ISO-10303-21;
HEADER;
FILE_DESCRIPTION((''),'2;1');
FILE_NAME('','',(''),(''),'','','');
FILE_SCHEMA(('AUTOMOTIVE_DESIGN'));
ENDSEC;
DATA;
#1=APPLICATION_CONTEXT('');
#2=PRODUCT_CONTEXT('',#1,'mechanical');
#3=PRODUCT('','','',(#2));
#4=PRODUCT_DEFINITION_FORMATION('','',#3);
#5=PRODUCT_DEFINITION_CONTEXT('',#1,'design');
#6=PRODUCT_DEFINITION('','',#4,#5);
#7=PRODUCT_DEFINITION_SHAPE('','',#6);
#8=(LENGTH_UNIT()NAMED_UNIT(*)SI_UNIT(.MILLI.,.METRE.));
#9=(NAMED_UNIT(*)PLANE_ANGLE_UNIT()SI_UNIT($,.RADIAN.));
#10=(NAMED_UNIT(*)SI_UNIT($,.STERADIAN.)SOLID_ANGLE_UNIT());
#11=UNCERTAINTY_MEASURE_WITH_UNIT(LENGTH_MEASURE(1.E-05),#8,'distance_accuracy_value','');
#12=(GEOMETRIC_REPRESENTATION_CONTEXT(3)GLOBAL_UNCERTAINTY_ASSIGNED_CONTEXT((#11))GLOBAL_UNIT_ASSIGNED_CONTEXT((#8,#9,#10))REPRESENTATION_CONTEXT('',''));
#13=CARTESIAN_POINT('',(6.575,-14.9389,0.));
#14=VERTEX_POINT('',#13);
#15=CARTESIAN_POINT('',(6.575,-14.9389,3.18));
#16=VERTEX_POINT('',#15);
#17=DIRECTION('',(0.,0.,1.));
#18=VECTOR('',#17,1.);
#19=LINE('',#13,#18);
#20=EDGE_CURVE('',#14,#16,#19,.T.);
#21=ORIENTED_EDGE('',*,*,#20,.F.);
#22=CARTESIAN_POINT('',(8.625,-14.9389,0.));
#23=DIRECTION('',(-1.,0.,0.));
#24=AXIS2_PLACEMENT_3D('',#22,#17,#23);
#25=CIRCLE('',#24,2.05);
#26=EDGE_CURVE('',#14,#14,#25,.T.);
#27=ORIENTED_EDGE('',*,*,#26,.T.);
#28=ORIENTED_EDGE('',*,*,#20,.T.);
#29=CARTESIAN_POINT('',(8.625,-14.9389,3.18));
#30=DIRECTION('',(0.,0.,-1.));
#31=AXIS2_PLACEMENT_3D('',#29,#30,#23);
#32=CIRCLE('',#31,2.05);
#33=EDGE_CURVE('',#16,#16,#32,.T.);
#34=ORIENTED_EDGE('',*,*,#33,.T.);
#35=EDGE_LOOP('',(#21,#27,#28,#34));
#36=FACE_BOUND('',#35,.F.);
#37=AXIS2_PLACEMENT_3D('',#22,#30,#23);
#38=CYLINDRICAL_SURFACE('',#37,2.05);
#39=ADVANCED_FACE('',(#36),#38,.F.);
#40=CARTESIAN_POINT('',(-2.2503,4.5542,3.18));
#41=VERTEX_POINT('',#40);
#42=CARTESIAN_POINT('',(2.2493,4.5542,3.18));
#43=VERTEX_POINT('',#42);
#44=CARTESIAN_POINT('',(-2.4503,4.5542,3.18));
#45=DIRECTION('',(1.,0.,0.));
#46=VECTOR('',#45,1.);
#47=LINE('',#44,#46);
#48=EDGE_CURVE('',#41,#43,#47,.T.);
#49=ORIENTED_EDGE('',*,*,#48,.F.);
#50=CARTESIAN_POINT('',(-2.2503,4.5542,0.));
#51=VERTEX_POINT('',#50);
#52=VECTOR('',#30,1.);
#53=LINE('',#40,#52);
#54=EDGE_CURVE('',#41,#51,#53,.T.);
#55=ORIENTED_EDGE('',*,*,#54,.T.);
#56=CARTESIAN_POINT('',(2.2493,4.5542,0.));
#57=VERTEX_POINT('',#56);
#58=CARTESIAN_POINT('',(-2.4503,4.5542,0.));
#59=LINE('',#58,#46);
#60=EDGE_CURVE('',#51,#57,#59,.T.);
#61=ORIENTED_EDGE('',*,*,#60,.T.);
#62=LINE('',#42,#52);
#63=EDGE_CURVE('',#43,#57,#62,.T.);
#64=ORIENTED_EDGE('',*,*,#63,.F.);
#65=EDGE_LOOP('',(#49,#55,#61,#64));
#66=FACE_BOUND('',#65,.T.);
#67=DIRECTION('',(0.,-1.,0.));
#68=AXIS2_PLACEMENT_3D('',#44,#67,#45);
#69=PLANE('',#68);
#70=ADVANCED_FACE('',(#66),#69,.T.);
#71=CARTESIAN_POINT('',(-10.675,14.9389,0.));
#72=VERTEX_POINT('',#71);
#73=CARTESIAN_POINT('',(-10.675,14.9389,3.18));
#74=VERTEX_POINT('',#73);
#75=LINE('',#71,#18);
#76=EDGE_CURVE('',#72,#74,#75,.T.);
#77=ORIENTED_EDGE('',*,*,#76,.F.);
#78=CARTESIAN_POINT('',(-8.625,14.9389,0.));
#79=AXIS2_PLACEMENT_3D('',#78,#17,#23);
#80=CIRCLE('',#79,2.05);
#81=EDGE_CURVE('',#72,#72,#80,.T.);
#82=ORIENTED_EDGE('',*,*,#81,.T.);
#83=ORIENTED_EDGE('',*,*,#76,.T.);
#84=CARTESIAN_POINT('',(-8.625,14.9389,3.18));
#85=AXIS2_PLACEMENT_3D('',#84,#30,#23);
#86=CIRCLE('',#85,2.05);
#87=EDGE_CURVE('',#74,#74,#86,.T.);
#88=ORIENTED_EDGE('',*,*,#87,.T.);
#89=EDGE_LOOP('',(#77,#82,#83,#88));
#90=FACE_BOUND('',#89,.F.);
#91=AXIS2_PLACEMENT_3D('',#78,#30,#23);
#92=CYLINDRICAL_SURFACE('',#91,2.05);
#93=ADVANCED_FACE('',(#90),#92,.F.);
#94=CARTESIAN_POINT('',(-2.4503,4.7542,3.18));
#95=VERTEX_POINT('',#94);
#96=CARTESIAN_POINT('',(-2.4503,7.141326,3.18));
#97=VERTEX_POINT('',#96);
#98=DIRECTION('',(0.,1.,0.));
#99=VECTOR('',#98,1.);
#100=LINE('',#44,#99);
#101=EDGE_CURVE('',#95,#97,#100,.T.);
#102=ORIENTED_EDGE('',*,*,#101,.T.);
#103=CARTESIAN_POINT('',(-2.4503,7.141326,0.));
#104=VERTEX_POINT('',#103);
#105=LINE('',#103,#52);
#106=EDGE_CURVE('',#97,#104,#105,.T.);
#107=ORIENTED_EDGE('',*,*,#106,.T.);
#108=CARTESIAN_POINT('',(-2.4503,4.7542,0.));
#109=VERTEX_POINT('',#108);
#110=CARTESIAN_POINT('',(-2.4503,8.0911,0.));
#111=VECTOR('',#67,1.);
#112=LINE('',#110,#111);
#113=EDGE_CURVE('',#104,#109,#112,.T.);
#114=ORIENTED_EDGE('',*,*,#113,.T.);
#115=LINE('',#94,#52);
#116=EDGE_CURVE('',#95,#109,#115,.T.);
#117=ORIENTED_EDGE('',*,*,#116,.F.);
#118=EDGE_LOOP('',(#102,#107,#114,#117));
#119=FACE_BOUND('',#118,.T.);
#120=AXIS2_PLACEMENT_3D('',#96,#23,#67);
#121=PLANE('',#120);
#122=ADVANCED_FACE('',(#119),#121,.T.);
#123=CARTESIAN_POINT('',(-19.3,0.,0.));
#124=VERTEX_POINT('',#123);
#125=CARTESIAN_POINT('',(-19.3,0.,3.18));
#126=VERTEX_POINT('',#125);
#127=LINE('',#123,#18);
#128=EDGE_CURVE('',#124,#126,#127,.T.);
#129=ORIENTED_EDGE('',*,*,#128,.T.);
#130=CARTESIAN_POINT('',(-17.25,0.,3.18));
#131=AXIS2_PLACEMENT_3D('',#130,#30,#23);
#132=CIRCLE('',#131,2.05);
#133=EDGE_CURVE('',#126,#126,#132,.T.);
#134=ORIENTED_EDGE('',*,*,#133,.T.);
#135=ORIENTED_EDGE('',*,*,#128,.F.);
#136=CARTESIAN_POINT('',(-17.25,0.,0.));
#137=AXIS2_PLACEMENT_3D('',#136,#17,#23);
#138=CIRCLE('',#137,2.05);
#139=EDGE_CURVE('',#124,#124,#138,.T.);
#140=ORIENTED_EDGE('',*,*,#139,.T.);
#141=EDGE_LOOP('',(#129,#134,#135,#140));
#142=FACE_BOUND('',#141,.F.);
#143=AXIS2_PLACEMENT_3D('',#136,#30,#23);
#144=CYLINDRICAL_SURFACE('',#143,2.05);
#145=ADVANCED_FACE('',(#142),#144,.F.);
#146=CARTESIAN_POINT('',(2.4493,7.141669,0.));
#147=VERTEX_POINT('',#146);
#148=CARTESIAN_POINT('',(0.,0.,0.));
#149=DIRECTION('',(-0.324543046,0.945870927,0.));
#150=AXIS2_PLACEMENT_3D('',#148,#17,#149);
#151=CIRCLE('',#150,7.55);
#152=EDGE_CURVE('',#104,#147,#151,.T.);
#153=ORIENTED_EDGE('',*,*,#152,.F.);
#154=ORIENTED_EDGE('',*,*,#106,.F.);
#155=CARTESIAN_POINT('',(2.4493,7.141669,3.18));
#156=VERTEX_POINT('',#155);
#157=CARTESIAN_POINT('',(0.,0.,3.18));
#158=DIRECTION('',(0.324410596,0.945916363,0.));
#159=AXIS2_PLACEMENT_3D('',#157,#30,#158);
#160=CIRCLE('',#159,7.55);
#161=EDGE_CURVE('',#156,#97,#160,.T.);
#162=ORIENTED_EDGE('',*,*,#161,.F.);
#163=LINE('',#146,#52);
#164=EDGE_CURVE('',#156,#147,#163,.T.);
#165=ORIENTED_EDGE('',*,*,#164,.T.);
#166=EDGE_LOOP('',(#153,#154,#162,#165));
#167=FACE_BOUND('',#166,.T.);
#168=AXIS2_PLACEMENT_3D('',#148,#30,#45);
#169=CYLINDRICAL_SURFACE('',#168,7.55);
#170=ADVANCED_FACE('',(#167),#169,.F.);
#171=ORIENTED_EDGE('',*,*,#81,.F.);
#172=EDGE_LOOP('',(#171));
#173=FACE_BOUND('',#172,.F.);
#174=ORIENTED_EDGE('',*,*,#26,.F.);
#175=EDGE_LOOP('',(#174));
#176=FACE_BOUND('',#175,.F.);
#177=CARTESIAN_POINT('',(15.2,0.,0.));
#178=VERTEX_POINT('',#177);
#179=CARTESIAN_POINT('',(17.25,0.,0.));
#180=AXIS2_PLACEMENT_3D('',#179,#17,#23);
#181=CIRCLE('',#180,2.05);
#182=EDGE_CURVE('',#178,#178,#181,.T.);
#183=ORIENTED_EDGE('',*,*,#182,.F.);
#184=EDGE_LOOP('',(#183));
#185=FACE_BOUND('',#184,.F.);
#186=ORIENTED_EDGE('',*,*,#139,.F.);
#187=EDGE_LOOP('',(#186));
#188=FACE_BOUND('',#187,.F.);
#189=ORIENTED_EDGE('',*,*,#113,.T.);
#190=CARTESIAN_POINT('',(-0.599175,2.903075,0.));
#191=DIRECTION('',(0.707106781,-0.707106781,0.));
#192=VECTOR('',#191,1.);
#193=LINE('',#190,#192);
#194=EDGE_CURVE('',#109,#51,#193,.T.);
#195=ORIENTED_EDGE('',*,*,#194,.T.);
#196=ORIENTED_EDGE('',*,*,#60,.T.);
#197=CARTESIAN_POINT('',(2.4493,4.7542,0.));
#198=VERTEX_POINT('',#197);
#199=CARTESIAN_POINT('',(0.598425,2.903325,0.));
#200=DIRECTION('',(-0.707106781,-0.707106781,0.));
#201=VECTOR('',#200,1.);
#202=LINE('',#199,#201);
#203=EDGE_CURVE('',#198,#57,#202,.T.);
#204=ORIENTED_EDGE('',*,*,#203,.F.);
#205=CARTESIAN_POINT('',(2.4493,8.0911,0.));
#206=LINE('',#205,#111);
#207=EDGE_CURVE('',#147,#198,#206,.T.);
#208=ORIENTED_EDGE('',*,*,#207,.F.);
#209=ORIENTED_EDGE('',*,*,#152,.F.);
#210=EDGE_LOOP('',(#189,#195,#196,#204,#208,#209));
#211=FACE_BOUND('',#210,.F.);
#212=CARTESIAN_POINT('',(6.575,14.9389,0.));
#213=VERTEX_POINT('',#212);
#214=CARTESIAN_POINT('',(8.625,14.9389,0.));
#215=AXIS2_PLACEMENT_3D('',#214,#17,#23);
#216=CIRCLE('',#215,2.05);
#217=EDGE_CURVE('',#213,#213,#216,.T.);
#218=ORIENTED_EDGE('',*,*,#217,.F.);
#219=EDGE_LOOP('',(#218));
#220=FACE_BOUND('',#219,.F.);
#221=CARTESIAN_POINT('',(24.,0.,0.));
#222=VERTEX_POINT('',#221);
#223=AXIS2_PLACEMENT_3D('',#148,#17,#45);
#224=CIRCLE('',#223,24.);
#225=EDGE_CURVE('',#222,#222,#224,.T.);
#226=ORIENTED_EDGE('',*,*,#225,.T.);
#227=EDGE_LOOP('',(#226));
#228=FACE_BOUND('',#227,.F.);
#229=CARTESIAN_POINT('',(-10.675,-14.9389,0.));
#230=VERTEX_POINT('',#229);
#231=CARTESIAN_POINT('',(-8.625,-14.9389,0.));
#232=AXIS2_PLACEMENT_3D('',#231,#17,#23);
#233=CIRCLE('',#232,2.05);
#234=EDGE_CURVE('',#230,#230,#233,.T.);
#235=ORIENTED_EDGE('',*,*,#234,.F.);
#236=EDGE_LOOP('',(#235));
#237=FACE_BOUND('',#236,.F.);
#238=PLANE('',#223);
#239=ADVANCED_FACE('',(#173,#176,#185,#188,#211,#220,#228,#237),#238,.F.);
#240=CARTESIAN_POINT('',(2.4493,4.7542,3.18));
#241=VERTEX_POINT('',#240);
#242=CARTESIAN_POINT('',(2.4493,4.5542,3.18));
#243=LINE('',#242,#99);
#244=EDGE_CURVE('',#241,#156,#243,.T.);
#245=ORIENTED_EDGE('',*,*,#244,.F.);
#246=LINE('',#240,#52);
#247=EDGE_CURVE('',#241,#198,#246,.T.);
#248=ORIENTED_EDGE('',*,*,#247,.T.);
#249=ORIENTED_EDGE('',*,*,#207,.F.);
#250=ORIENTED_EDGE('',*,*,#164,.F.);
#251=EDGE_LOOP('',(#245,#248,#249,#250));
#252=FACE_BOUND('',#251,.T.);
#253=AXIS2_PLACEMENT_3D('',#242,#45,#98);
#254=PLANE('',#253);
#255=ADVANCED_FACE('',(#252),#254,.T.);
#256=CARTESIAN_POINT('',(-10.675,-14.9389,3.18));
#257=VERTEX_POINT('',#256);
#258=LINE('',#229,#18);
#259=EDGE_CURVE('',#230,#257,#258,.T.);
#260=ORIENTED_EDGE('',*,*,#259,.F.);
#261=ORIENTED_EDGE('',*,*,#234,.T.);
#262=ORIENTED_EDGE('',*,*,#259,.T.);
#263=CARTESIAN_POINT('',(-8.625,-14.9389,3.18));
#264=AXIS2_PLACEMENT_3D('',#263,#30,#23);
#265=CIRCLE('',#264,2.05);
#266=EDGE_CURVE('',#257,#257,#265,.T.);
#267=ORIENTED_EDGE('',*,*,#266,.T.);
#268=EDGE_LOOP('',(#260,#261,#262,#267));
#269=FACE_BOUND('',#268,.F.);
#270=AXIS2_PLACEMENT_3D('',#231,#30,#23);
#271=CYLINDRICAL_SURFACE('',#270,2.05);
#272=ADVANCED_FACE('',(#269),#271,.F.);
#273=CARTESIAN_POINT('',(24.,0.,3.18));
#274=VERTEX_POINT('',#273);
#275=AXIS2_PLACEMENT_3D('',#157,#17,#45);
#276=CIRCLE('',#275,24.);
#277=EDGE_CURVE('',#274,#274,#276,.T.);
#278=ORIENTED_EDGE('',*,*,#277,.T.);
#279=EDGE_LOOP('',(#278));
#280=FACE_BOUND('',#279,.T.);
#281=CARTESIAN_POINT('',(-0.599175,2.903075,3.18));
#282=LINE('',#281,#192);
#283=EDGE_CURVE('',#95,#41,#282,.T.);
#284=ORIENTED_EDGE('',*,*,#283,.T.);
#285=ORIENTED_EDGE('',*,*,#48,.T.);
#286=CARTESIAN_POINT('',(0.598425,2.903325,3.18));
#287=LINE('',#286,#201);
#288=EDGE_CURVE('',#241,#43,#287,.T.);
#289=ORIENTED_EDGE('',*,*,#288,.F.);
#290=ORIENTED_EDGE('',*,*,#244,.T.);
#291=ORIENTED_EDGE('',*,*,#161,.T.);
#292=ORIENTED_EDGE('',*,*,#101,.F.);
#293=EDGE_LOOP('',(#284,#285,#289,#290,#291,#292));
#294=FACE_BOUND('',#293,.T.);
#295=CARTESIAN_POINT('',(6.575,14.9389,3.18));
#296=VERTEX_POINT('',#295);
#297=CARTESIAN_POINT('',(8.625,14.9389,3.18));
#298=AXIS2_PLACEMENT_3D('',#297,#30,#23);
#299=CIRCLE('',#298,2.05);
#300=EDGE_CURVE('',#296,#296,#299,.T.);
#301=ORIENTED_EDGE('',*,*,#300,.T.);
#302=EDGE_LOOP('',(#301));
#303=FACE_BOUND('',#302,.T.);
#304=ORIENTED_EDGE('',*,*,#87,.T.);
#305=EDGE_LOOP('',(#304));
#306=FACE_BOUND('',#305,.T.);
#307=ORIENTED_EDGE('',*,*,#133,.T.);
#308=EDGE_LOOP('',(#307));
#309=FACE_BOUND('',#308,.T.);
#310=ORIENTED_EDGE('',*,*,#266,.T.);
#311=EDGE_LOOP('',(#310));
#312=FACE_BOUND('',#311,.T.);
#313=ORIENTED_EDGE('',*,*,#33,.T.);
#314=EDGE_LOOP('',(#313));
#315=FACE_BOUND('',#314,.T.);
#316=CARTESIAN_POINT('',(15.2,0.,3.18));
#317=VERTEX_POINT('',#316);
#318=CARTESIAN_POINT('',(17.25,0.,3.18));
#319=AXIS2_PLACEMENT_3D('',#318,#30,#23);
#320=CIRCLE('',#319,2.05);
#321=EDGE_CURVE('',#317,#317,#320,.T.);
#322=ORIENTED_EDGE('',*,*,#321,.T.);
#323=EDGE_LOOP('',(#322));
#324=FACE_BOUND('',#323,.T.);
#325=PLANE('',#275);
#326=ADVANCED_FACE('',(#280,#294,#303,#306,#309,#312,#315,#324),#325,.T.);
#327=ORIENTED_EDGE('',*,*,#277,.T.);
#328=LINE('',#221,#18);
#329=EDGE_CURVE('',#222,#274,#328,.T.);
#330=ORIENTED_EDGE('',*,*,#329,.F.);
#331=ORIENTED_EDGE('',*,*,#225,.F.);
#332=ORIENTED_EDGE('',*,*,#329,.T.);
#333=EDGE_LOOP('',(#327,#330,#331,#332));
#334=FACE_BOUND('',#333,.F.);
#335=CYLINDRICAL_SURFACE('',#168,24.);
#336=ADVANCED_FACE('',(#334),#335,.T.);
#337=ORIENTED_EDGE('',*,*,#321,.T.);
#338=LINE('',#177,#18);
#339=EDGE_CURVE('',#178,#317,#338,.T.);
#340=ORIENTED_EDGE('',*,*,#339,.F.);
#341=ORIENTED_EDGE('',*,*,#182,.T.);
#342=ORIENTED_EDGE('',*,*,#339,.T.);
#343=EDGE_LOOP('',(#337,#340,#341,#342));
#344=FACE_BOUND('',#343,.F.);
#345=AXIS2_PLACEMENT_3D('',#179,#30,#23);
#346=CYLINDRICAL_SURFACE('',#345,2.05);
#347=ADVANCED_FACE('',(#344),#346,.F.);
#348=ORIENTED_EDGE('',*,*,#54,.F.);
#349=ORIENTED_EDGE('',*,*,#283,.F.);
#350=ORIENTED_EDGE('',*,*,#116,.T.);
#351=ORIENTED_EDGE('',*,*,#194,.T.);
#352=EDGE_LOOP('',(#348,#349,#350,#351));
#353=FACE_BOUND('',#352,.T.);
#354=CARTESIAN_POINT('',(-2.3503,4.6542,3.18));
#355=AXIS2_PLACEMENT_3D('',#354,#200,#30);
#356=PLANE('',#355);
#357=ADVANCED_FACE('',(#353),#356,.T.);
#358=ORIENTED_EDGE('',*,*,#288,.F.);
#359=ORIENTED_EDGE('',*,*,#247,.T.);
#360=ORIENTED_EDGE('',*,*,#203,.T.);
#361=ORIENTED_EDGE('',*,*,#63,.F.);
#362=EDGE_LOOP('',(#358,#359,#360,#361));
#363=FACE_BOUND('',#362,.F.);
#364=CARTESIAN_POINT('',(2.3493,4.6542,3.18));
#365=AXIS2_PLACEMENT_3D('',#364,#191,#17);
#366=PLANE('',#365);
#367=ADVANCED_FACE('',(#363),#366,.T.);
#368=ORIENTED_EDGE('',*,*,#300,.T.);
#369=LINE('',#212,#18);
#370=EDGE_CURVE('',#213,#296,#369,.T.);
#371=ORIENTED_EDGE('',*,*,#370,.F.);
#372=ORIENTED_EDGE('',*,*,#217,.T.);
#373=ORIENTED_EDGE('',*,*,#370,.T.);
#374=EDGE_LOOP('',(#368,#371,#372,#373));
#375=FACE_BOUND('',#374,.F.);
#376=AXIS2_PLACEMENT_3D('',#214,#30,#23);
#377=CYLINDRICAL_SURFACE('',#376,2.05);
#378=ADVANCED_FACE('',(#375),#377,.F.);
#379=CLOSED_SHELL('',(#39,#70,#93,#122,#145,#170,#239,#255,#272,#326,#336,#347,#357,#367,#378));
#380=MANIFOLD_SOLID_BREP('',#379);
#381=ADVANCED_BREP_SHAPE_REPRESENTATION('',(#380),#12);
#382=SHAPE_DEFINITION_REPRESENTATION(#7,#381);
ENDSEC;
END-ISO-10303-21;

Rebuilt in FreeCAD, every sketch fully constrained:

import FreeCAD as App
import Part
import Sketcher
from FreeCAD import Vector
Q = App.Units.Quantity


def edges_at(feature, points):
    """Names of the edges that pass closest to the given points."""
    edges = feature.Shape.Edges
    near = lambda p: min(range(len(edges)), key=lambda i: edges[i].distToShape(Part.Vertex(*p))[0])
    return sorted({f"Edge{near(p) + 1}" for p in points})

doc = App.newDocument("Part")
params = doc.addObject("Spreadsheet::Sheet", "Params")
for row, (alias, value) in enumerate([
    ("sketch1_diameter", "48 mm"),
    ("sketch1_diameter2", "15.1 mm"),
    ("pad1_length", "3.18 mm"),
    ("sketch2_diameter", "4.1 mm"),
    ("pad2_length", "3.18 mm"),
    ("chamfer_size", "0.2 mm"),
], start=1):
    params.set(f"A{row}", alias)
    params.set(f"B{row}", "=" + value)
    params.setAlias(f"B{row}", alias)

body = doc.addObject("PartDesign::Body", "Body")

# Sketch on XY plane
sketch1 = body.newObject("Sketcher::SketchObject", "Sketch")
sketch1.AttachmentSupport = (doc.getObject("XY_Plane"), [""])
sketch1.MapMode = "FlatFace"
sketch1.addGeometry(Part.Circle(Vector(0, 0, 0), Vector(0, 0, 1), 24), False)
sketch1.addGeometry(Part.Circle(Vector(0, 0, 0), Vector(0, 0, 1), 7.55), False)
sketch1.addConstraint(Sketcher.Constraint("Coincident", 0, 3, -1, 1))
sketch1.addConstraint(Sketcher.Constraint("Coincident", 1, 3, -1, 1))
sketch1.addConstraint(Sketcher.Constraint("Diameter", 0, Q("48 mm")))
sketch1.addConstraint(Sketcher.Constraint("Diameter", 1, Q("15.1 mm")))
sketch1.setExpression("Constraints[2]", "Params.sketch1_diameter")
sketch1.setExpression("Constraints[3]", "Params.sketch1_diameter2")
pad1 = body.newObject("PartDesign::Pad", "Pad")
pad1.Profile = sketch1
pad1.setExpression("Length", "Params.pad1_length")

# Sketch on XY plane
sketch2 = body.newObject("Sketcher::SketchObject", "Sketch001")
sketch2.AttachmentSupport = (doc.getObject("XY_Plane"), [""])
sketch2.MapMode = "FlatFace"
sketch2.addGeometry(Part.Circle(Vector(17.25, 0, 0), Vector(0, 0, 1), 2.05), False)
sketch2.addGeometry(Part.Circle(Vector(8.625, -14.9389, 0), Vector(0, 0, 1), 2.05), False)
sketch2.addGeometry(Part.Circle(Vector(8.625, 14.9389, 0), Vector(0, 0, 1), 2.05), False)
sketch2.addGeometry(Part.Circle(Vector(-8.625, 14.9389, 0), Vector(0, 0, 1), 2.05), False)
sketch2.addGeometry(Part.Circle(Vector(-8.625, -14.9389, 0), Vector(0, 0, 1), 2.05), False)
sketch2.addGeometry(Part.Circle(Vector(-17.25, 0, 0), Vector(0, 0, 1), 2.05), False)
sketch2.addConstraint(Sketcher.Constraint("Equal", 0, 1))
sketch2.addConstraint(Sketcher.Constraint("Equal", 1, 2))
sketch2.addConstraint(Sketcher.Constraint("Equal", 2, 3))
sketch2.addConstraint(Sketcher.Constraint("Equal", 3, 4))
sketch2.addConstraint(Sketcher.Constraint("Equal", 4, 5))
sketch2.addConstraint(Sketcher.Constraint("Symmetric", 1, 3, 3, 3, -1, 1))
sketch2.addConstraint(Sketcher.Constraint("Symmetric", 2, 3, 4, 3, -1, 1))
sketch2.addConstraint(Sketcher.Constraint("Symmetric", 0, 3, 5, 3, -1, 1))
sketch2.addConstraint(Sketcher.Constraint("Symmetric", 2, 3, 3, 3, -2))
sketch2.addConstraint(Sketcher.Constraint("PointOnObject", 0, 3, -1))
sketch2.addConstraint(Sketcher.Constraint("Diameter", 0, Q("4.1 mm")))
sketch2.addConstraint(Sketcher.Constraint("DistanceX", 5, 3, 0, 3, Q("34.5 mm")))
sketch2.addConstraint(Sketcher.Constraint("DistanceX", 3, 3, 2, 3, Q("17.25 mm")))
sketch2.addConstraint(Sketcher.Constraint("DistanceY", 1, 3, -1, 1, Q("14.939 mm")))
sketch2.setExpression("Constraints[10]", "Params.sketch2_diameter")
pocket1 = body.newObject("PartDesign::Pocket", "Pocket")
pocket1.Profile = sketch2
pocket1.Type = "ThroughAll"
pocket1.Reversed = True

# Sketch on XY plane
sketch3 = body.newObject("Sketcher::SketchObject", "Sketch002")
sketch3.AttachmentSupport = (doc.getObject("XY_Plane"), [""])
sketch3.MapMode = "FlatFace"
sketch3.AttachmentOffset = App.Placement(Vector(0, 0, 3.18), App.Rotation())
sketch3.addGeometry(Part.LineSegment(Vector(-2.4503, 4.5542, 0), Vector(2.4493, 4.5542, 0)), False)
sketch3.addGeometry(Part.LineSegment(Vector(2.4493, 4.5542, 0), Vector(2.4493, 8.0911, 0)), False)
sketch3.addGeometry(Part.LineSegment(Vector(2.4493, 8.0911, 0), Vector(-2.4503, 8.0911, 0)), False)
sketch3.addGeometry(Part.LineSegment(Vector(-2.4503, 8.0911, 0), Vector(-2.4503, 4.5542, 0)), False)
sketch3.addConstraint(Sketcher.Constraint("Coincident", 0, 2, 1, 1))
sketch3.addConstraint(Sketcher.Constraint("Coincident", 1, 2, 2, 1))
sketch3.addConstraint(Sketcher.Constraint("Coincident", 2, 2, 3, 1))
sketch3.addConstraint(Sketcher.Constraint("Coincident", 3, 2, 0, 1))
sketch3.addConstraint(Sketcher.Constraint("Horizontal", 0))
sketch3.addConstraint(Sketcher.Constraint("Vertical", 1))
sketch3.addConstraint(Sketcher.Constraint("Horizontal", 2))
sketch3.addConstraint(Sketcher.Constraint("Vertical", 3))
sketch3.addConstraint(Sketcher.Constraint("DistanceY", 1, 1, 1, 2, Q("3.537 mm")))
sketch3.addConstraint(Sketcher.Constraint("DistanceX", 0, 1, 0, 2, Q("4.8996 mm")))
sketch3.addConstraint(Sketcher.Constraint("DistanceY", -1, 1, 1, 2, Q("8.091 mm")))
sketch3.addConstraint(Sketcher.Constraint("DistanceX", -1, 1, 0, 2, Q("2.4493 mm")))
pad2 = body.newObject("PartDesign::Pad", "Pad001")
pad2.Profile = sketch3
pad2.setExpression("Length", "Params.pad2_length")
pad2.Reversed = True
doc.recompute()

chamfer = body.newObject("PartDesign::Chamfer", "Chamfer")
chamfer.Base = (pad2, edges_at(pad2, [(-2.45, 4.554, 1.59), (2.449, 4.554, 1.59)]))
chamfer.setExpression("Size", "Params.chamfer_size")

doc.recompute()
